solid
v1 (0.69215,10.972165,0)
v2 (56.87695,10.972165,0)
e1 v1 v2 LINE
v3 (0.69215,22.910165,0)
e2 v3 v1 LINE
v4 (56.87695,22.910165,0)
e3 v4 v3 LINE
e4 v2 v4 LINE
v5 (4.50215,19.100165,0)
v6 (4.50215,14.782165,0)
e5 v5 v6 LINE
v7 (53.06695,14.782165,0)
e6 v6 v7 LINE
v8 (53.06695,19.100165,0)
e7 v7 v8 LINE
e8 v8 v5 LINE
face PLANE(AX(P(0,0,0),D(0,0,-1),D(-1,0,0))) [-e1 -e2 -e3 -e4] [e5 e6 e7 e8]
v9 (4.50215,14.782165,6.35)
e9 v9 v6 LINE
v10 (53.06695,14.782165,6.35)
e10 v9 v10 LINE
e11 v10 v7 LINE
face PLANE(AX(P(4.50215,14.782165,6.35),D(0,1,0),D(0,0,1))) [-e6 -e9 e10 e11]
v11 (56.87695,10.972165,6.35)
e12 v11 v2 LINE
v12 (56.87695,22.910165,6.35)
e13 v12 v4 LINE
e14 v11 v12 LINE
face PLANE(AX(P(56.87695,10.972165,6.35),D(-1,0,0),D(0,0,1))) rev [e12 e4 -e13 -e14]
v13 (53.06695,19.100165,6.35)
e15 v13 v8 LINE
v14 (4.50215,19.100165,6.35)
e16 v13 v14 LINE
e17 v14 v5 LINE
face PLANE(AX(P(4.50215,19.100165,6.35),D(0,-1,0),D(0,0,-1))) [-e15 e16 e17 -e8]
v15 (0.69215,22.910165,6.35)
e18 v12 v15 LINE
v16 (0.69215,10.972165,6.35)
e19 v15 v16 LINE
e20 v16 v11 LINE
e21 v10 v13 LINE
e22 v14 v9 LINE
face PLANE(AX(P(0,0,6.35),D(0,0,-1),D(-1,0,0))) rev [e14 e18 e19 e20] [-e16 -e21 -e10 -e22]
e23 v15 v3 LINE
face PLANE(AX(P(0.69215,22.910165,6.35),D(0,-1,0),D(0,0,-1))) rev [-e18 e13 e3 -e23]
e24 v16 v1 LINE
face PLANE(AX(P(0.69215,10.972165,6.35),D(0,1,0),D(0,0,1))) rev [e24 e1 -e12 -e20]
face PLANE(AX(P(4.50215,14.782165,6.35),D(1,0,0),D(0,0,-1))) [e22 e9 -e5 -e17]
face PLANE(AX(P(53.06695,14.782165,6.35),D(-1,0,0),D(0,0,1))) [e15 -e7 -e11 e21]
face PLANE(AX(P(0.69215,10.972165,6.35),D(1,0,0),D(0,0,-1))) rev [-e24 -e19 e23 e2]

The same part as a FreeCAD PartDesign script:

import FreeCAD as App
import Part
import Sketcher

V = App.Vector
Q = App.Units.Quantity


def add_polygon(sketch, points):
    """Adds a closed chain of lines whose ends are joined by coincident constraints."""
    first, n = sketch.GeometryCount, len(points)
    for a, b in zip(points, points[1:] + points[:1]):
        sketch.addGeometry(Part.LineSegment(App.Vector(*a, 0), App.Vector(*b, 0)), False)
    for i in range(n):
        sketch.addConstraint(Sketcher.Constraint("Coincident", first + i, 2, first + (i + 1) % n, 1))

doc = App.newDocument("Part")
params = doc.addObject("Spreadsheet::Sheet", "Params")
for row, (alias, value) in enumerate([
    ("sketch1_height", "0.47 in"),
    ("sketch1_height2", "0.17 in"),
    ("sketch1_width", "2.212 in"),
    ("sketch1_width2", "1.912 in"),
    ("pad1_length", "0.25 in"),
], start=1):
    params.set(f"A{row}", alias)
    params.set(f"B{row}", "=" + value)
    params.setAlias(f"B{row}", alias)

body = doc.addObject("PartDesign::Body", "Body")

# Sketch on XY plane
sketch1 = body.newObject("Sketcher::SketchObject", "Sketch")
sketch1.AttachmentSupport = (doc.getObject("XY_Plane"), [""])
sketch1.MapMode = "FlatFace"
add_polygon(sketch1, [(0.69215, 22.910165), (0.69215, 10.972165), (56.87695, 10.972165), (56.87695, 22.910165)])  # lines 0-3
add_polygon(sketch1, [(53.06695, 14.782165), (4.50215, 14.782165), (4.50215, 19.100165), (53.06695, 19.100165)])  # lines 4-7
sketch1.addConstraint([
    Sketcher.Constraint("Vertical", 0),
    Sketcher.Constraint("Horizontal", 1),
    Sketcher.Constraint("Vertical", 2),
    Sketcher.Constraint("Horizontal", 3),
    Sketcher.Constraint("Horizontal", 4),
    Sketcher.Constraint("Vertical", 5),
    Sketcher.Constraint("Horizontal", 6),
    Sketcher.Constraint("Vertical", 7),
    Sketcher.Constraint("DistanceY", 0, 2, 0, 1, Q("0.47 in")),
    Sketcher.Constraint("DistanceY", 5, 1, 5, 2, Q("0.17 in")),
    Sketcher.Constraint("DistanceX", 1, 1, 1, 2, Q("2.212 in")),
    Sketcher.Constraint("DistanceX", 4, 2, 4, 1, Q("1.912 in")),
    Sketcher.Constraint("DistanceX", 0, 2, 4, 2, Q("0.15 in")),
    Sketcher.Constraint("DistanceY", 0, 2, 4, 2, Q("0.15 in")),
    Sketcher.Constraint("DistanceX", -1, 1, 0, 2, 0.69215),
    Sketcher.Constraint("DistanceY", -1, 1, 0, 2, 10.972165),
])
sketch1.setExpression("Constraints[16]", "Params.sketch1_height")
sketch1.setExpression("Constraints[17]", "Params.sketch1_height2")
sketch1.setExpression("Constraints[18]", "Params.sketch1_width")
sketch1.setExpression("Constraints[19]", "Params.sketch1_width2")
pad1 = body.newObject("PartDesign::Pad", "Pad")
pad1.Profile = sketch1
pad1.setExpression("Length", "Params.pad1_length")

doc.recompute()
